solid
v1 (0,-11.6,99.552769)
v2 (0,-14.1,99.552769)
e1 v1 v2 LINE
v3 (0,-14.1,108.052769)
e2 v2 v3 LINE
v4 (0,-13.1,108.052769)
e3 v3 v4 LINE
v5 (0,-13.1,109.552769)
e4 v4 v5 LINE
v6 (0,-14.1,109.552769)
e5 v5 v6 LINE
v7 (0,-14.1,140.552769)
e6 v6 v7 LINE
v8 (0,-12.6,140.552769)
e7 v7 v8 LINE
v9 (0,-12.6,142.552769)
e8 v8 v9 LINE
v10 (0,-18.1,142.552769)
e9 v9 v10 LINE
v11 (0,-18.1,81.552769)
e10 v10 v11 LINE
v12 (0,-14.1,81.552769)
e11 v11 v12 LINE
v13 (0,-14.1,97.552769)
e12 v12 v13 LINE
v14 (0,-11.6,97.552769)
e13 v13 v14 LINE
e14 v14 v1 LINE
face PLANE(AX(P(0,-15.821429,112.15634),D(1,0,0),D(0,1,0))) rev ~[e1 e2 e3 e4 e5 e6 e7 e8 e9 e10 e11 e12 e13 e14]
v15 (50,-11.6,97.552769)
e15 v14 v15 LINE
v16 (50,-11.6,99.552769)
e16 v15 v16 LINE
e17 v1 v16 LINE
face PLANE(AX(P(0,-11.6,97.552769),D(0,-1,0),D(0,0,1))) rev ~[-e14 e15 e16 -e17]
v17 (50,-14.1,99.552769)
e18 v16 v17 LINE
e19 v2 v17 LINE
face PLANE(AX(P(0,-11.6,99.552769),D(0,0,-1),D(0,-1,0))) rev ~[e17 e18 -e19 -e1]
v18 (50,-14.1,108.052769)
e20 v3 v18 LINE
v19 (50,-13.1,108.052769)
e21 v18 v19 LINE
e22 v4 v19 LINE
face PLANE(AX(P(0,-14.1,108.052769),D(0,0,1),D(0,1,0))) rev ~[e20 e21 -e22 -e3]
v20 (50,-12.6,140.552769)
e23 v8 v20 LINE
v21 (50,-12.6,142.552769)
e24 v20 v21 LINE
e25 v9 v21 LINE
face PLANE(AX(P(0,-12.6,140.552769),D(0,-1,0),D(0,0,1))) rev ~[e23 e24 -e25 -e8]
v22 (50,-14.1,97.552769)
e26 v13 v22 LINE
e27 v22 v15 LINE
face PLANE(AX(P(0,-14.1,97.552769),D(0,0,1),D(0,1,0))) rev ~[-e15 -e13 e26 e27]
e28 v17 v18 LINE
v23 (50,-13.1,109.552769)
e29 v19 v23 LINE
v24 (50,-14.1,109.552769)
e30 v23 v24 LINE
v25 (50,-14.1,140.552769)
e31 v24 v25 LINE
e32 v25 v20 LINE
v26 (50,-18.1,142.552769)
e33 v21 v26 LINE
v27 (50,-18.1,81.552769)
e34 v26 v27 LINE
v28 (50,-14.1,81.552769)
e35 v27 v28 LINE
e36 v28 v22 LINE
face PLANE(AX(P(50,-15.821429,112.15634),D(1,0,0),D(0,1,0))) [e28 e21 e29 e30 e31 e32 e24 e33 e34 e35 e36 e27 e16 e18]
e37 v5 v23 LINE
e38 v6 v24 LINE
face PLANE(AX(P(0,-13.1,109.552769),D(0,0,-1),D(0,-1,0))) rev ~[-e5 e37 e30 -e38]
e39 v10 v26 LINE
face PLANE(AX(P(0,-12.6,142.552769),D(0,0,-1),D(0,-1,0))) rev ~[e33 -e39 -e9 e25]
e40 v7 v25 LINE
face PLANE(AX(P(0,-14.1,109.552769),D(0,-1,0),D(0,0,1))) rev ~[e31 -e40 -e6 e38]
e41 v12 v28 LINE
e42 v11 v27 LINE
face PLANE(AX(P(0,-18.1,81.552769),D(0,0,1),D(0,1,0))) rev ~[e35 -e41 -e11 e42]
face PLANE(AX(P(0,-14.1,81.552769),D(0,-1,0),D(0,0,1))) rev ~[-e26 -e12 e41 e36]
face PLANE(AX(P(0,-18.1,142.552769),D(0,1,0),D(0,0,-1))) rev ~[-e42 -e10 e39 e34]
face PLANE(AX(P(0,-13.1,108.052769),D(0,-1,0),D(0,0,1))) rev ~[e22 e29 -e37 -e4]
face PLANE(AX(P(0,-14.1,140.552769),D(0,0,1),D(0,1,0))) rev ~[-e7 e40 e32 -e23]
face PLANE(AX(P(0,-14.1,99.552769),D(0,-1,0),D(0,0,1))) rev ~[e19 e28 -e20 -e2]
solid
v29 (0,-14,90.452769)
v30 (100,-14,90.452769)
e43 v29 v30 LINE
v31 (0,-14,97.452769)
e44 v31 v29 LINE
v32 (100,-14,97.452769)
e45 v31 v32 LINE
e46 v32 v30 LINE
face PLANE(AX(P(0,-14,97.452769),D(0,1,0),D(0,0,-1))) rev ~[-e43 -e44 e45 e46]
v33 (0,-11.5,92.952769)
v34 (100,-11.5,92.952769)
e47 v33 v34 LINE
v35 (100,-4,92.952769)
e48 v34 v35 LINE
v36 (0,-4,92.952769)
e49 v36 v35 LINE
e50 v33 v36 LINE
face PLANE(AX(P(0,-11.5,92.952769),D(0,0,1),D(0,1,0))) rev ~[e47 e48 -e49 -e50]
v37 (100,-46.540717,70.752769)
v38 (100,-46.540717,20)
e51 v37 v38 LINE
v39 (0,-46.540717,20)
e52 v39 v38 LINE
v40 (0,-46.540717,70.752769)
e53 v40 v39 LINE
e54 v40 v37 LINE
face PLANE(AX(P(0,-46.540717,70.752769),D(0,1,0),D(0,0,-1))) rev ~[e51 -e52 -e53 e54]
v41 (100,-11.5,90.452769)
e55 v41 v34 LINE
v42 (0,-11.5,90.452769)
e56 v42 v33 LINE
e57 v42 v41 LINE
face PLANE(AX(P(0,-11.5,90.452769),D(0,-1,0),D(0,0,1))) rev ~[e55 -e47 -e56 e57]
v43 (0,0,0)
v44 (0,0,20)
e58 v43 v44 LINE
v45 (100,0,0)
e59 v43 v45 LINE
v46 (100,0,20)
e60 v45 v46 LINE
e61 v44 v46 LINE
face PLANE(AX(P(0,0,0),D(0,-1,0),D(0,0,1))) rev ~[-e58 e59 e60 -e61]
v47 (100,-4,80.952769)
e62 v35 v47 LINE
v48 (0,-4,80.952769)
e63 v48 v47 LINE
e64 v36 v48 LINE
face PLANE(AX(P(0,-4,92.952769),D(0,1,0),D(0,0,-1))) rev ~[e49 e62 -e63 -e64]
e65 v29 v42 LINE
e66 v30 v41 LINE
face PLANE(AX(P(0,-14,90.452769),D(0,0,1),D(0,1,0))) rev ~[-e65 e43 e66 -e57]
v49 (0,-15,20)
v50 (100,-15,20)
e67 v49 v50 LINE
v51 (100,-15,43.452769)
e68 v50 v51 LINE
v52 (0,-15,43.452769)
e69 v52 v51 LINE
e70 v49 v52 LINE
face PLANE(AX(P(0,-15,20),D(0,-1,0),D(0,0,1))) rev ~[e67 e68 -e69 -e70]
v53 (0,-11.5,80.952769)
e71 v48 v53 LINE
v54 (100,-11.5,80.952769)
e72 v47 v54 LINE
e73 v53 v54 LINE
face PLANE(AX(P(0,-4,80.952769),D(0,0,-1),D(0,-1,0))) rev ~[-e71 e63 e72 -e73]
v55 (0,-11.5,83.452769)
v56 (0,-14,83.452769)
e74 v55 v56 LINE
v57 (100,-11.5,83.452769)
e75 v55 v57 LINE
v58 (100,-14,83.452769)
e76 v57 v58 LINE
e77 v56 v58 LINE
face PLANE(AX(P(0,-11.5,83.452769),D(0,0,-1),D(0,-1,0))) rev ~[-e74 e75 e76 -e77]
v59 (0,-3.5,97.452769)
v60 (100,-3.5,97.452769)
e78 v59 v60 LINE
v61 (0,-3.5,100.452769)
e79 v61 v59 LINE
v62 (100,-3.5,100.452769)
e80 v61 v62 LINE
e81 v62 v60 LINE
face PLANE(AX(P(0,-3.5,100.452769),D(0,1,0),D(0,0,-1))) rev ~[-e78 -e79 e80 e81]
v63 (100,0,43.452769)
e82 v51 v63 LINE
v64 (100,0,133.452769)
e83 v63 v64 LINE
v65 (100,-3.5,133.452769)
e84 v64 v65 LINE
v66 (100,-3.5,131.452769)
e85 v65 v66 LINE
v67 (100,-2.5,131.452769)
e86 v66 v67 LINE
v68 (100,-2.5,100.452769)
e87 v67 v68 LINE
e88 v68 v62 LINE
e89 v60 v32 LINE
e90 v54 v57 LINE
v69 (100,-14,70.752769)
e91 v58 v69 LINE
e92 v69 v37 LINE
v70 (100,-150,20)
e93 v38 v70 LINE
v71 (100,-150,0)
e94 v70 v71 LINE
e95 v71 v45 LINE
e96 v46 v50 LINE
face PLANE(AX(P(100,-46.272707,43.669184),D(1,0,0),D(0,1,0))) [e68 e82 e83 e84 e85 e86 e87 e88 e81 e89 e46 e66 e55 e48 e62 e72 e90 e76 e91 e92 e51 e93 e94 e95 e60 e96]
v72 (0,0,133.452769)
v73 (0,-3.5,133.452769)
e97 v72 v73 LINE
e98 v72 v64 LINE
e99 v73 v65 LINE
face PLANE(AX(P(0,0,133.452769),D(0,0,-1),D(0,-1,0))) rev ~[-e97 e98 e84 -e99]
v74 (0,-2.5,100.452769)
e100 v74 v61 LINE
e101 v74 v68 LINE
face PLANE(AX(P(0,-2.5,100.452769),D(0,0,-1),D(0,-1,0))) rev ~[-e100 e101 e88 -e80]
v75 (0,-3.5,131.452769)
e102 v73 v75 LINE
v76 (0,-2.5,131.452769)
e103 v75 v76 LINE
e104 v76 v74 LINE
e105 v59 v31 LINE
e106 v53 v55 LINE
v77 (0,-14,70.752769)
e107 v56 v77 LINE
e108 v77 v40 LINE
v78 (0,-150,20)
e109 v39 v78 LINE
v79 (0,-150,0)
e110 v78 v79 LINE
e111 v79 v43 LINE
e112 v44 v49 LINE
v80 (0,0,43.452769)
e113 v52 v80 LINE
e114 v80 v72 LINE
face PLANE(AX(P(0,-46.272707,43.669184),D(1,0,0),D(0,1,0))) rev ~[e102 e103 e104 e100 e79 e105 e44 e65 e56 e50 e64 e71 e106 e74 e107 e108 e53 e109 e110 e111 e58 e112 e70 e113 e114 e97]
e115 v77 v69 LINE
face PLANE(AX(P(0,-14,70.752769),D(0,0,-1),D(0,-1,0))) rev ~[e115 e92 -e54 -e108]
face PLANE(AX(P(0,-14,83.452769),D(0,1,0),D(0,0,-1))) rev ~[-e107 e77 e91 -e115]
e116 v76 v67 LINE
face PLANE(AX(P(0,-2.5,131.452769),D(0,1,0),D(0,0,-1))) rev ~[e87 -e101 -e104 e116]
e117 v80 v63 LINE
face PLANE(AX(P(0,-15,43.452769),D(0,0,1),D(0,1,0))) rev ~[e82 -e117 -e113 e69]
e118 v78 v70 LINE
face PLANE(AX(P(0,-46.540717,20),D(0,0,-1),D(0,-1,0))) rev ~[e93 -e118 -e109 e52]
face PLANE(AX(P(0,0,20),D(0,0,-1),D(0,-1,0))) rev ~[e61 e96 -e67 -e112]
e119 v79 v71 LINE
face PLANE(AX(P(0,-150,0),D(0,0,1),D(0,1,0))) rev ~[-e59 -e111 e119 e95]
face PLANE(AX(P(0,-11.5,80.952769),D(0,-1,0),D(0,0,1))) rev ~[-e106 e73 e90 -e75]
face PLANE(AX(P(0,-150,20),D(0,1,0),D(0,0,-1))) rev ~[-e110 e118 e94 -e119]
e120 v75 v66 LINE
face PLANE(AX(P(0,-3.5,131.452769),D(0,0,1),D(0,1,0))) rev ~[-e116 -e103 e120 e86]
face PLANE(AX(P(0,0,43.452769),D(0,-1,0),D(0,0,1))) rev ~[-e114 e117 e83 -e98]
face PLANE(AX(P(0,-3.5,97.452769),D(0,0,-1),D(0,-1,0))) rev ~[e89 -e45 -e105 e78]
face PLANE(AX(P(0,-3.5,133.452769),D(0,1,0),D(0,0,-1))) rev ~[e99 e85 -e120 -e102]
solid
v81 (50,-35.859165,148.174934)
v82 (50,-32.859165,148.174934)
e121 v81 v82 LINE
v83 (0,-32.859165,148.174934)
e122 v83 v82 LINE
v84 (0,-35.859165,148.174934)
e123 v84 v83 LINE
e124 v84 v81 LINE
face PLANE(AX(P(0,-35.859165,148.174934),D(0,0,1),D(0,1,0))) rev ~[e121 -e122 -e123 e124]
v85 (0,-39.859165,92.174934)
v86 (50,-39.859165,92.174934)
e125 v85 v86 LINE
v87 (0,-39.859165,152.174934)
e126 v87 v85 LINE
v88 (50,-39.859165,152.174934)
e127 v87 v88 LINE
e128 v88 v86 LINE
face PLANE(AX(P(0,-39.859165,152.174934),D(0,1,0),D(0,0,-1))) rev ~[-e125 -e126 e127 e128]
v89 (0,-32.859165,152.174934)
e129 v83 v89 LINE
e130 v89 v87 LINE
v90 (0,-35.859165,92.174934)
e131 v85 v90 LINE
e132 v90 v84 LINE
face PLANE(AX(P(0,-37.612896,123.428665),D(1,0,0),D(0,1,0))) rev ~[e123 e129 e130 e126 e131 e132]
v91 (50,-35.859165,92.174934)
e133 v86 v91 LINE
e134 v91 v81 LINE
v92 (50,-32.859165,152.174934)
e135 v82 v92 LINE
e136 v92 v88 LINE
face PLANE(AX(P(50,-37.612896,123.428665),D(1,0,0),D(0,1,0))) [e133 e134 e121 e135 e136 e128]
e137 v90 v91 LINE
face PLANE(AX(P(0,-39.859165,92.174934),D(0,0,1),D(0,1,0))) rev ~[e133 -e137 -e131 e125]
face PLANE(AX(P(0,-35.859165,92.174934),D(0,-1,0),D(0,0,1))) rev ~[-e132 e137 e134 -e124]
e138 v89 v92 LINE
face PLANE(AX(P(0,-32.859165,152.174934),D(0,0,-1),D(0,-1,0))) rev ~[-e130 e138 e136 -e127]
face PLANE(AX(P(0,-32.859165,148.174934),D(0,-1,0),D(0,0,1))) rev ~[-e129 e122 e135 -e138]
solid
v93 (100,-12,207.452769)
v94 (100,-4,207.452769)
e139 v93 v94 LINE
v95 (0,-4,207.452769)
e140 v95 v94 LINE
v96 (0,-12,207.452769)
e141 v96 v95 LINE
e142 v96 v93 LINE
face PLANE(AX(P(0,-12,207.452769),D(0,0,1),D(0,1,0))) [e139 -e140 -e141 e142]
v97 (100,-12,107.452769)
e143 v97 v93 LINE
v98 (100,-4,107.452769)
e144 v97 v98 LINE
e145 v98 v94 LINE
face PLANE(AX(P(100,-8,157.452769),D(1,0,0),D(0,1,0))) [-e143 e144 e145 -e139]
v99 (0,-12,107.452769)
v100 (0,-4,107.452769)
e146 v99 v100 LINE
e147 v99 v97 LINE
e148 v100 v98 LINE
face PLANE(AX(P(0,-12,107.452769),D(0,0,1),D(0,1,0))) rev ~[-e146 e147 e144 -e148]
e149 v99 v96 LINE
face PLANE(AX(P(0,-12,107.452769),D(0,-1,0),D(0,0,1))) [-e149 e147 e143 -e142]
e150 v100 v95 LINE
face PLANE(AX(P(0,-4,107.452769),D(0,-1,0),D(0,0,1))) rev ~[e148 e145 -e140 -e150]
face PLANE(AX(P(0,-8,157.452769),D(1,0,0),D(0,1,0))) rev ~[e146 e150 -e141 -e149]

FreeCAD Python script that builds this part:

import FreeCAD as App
import Part
import Sketcher
from FreeCAD import Vector


def add_polygon(sketch, points):
    """Adds a closed chain of lines whose ends are joined by coincident constraints."""
    first, n = sketch.GeometryCount, len(points)
    for a, b in zip(points, points[1:] + points[:1]):
        sketch.addGeometry(Part.LineSegment(App.Vector(*a, 0), App.Vector(*b, 0)), False)
    for i in range(n):
        sketch.addConstraint(Sketcher.Constraint("Coincident", first + i, 2, first + (i + 1) % n, 1))

doc = App.newDocument("Part")
body = doc.addObject("PartDesign::Body", "Body")

sketch1 = doc.addObject("Sketcher::SketchObject", "Sketch")
body.addObject(sketch1)
sketch1.AttachmentSupport = (doc.YZ_Plane, [""])
sketch1.MapMode = "FlatFace"
add_polygon(sketch1, [(0, 43.452769), (0, 133.452769), (-3.5, 133.452769), (-3.5, 131.452769), (-2.5, 131.452769), (-2.5, 100.452769), (-3.5, 100.452769), (-3.5, 97.452769), (-14, 97.452769), (-14, 90.452769), (-11.5, 90.452769), (-11.5, 92.952769), (-4, 92.952769), (-4, 80.952769), (-11.5, 80.952769), (-11.5, 83.452769), (-14, 83.452769), (-14, 70.752769), (-46.540717, 70.752769), (-46.540717, 20), (-150, 20), (-150, 0), (0, 0), (0, 20), (-15, 20), (-15, 43.452769)])
sketch1.addConstraint([
    Sketcher.Constraint("Vertical", 0),
    Sketcher.Constraint("Horizontal", 1),
    Sketcher.Constraint("Vertical", 2),
    Sketcher.Constraint("Horizontal", 3),
    Sketcher.Constraint("Vertical", 4),
    Sketcher.Constraint("Horizontal", 5),
    Sketcher.Constraint("Vertical", 6),
    Sketcher.Constraint("Horizontal", 7),
    Sketcher.Constraint("Vertical", 8),
    Sketcher.Constraint("Horizontal", 9),
    Sketcher.Constraint("Vertical", 10),
    Sketcher.Constraint("Horizontal", 11),
    Sketcher.Constraint("Vertical", 12),
    Sketcher.Constraint("Horizontal", 13),
    Sketcher.Constraint("Vertical", 14),
    Sketcher.Constraint("Horizontal", 15),
    Sketcher.Constraint("Vertical", 16),
    Sketcher.Constraint("Horizontal", 17),
    Sketcher.Constraint("Vertical", 18),
    Sketcher.Constraint("Horizontal", 19),
    Sketcher.Constraint("Vertical", 20),
    Sketcher.Constraint("Horizontal", 21),
    Sketcher.Constraint("Vertical", 22),
    Sketcher.Constraint("Horizontal", 23),
    Sketcher.Constraint("Vertical", 24),
    Sketcher.Constraint("Horizontal", 25),
    Sketcher.Constraint("Coincident", 21, 2, -1, 1),
    Sketcher.Constraint("PointOnObject", 0, 2, -2),
    Sketcher.Constraint("Horizontal", 19, 2, 22, 2),
    Sketcher.Constraint("Vertical", 2, 2, 5, 2),
    Sketcher.Constraint("Vertical", 10, 2, 13, 2),
    Sketcher.Constraint("Vertical", 8, 2, 15, 2),
    Sketcher.Constraint("Equal", 15, 10),
    Sketcher.Constraint("Equal", 10, 14),
    Sketcher.Constraint("DistanceX", 3, 1, 3, 2, 1.0),
    Sketcher.Constraint("DistanceX", 21, 1, 21, 2, 150.0),
    Sketcher.Constraint("DistanceX", 23, 2, 23, 1, 15.0),
    Sketcher.Constraint("DistanceY", 0, 1, 0, 2, 90.0),
    Sketcher.Constraint("DistanceY", 2, 2, 2, 1, 2.0),
    Sketcher.Constraint("DistanceY", 4, 2, 4, 1, 31.0),
    Sketcher.Constraint("DistanceY", 6, 2, 6, 1, 3.0),
    Sketcher.Constraint("DistanceY", 8, 2, 8, 1, 7.0),
    Sketcher.Constraint("DistanceY", 12, 2, 12, 1, 12.0),
    Sketcher.Constraint("DistanceY", 20, 2, 20, 1, 20.0),
    Sketcher.Constraint("DistanceX", 1, 2, 1, 1, 3.5),
    Sketcher.Constraint("DistanceX", 7, 2, 7, 1, 10.5),
    Sketcher.Constraint("DistanceX", 9, 1, 9, 2, 2.5),
    Sketcher.Constraint("DistanceX", 11, 1, 11, 2, 7.5),
    Sketcher.Constraint("DistanceY", 16, 2, 16, 1, 12.7),
    Sketcher.Constraint("DistanceY", 18, 2, 18, 1, 50.752769),
    Sketcher.Constraint("DistanceX", 17, 2, 17, 1, 32.540717),
])
pad1 = doc.addObject("PartDesign::Pad", "Pad")
body.addObject(pad1)
pad1.Profile = sketch1
pad1.Length = 100
body2 = doc.addObject("PartDesign::Body", "Body001")

sketch2 = doc.addObject("Sketcher::SketchObject", "Sketch001")
body2.addObject(sketch2)
sketch2.AttachmentSupport = (doc.getObject("YZ_Plane001"), [""])
sketch2.MapMode = "FlatFace"
add_polygon(sketch2, [(-12, 207.452769), (-12, 107.452769), (-4, 107.452769), (-4, 207.452769)])
sketch2.addConstraint([
    Sketcher.Constraint("Vertical", 0),
    Sketcher.Constraint("Horizontal", 1),
    Sketcher.Constraint("Vertical", 2),
    Sketcher.Constraint("Horizontal", 3),
    Sketcher.Constraint("DistanceX", 1, 1, 1, 2, 8.0),
    Sketcher.Constraint("DistanceY", 0, 2, 0, 1, 100.0),
    Sketcher.Constraint("DistanceX", 0, 2, -1, 1, 12.0),
    Sketcher.Constraint("DistanceY", -1, 1, 0, 2, 107.452769),
])
pad2 = doc.addObject("PartDesign::Pad", "Pad001")
body2.addObject(pad2)
pad2.Profile = sketch2
pad2.Length = 100
body3 = doc.addObject("PartDesign::Body", "Body002")

sketch3 = doc.addObject("Sketcher::SketchObject", "Sketch002")
body3.addObject(sketch3)
sketch3.AttachmentSupport = (doc.getObject("YZ_Plane002"), [""])
sketch3.MapMode = "FlatFace"
add_polygon(sketch3, [(-12.6, 140.552769), (-12.6, 142.552769), (-18.1, 142.552769), (-18.1, 81.552769), (-14.1, 81.552769), (-14.1, 97.552769), (-11.6, 97.552769), (-11.6, 99.552769), (-14.1, 99.552769), (-14.1, 108.052769), (-13.1, 108.052769), (-13.1, 109.552769), (-14.1, 109.552769), (-14.1, 140.552769)])
sketch3.addConstraint([
    Sketcher.Constraint("Vertical", 0),
    Sketcher.Constraint("Horizontal", 1),
    Sketcher.Constraint("Vertical", 2),
    Sketcher.Constraint("Horizontal", 3),
    Sketcher.Constraint("Vertical", 4),
    Sketcher.Constraint("Horizontal", 5),
    Sketcher.Constraint("Vertical", 6),
    Sketcher.Constraint("Horizontal", 7),
    Sketcher.Constraint("Vertical", 8),
    Sketcher.Constraint("Horizontal", 9),
    Sketcher.Constraint("Vertical", 10),
    Sketcher.Constraint("Horizontal", 11),
    Sketcher.Constraint("Vertical", 12),
    Sketcher.Constraint("Horizontal", 13),
    Sketcher.Constraint("Vertical", 4, 2, 7, 2),
    Sketcher.Constraint("Vertical", 8, 2, 11, 2),
    Sketcher.Constraint("Equal", 0, 6),
    Sketcher.Constraint("Equal", 13, 10),
    Sketcher.Constraint("DistanceX", 3, 1, 3, 2, 4.0),
    Sketcher.Constraint("DistanceX", 9, 1, 9, 2, 1.0),
    Sketcher.Constraint("DistanceY", 0, 1, 0, 2, 2.0),
    Sketcher.Constraint("DistanceY", 2, 2, 2, 1, 61.0),
    Sketcher.Constraint("DistanceY", 4, 1, 4, 2, 16.0),
    Sketcher.Constraint("DistanceY", 12, 1, 12, 2, 31.0),
    Sketcher.Constraint("DistanceX", 1, 2, 1, 1, 5.5),
    Sketcher.Constraint("DistanceX", 5, 1, 5, 2, 2.5),
    Sketcher.Constraint("DistanceX", 0, 2, -1, 1, 12.6),
    Sketcher.Constraint("DistanceY", -1, 1, 0, 2, 142.552769),
])
pad3 = doc.addObject("PartDesign::Pad", "Pad002")
body3.addObject(pad3)
pad3.Profile = sketch3
pad3.Length = 50
body4 = doc.addObject("PartDesign::Body", "Body003")

sketch4 = doc.addObject("Sketcher::SketchObject", "Sketch003")
body4.addObject(sketch4)
sketch4.AttachmentSupport = (doc.getObject("YZ_Plane003"), [""])
sketch4.MapMode = "FlatFace"
add_polygon(sketch4, [(-39.859165, 92.174934), (-35.859165, 92.174934), (-35.859165, 148.174934), (-32.859165, 148.174934), (-32.859165, 152.174934), (-39.859165, 152.174934)])
sketch4.addConstraint([
    Sketcher.Constraint("Horizontal", 0),
    Sketcher.Constraint("Vertical", 1),
    Sketcher.Constraint("Horizontal", 2),
    Sketcher.Constraint("Vertical", 3),
    Sketcher.Constraint("Horizontal", 4),
    Sketcher.Constraint("Vertical", 5),
    Sketcher.Constraint("Equal", 0, 3),
    Sketcher.Constraint("DistanceX", 0, 1, 0, 2, 4.0),
    Sketcher.Constraint("DistanceX", 2, 1, 2, 2, 3.0),
    Sketcher.Constraint("DistanceY", 1, 1, 1, 2, 56.0),
    Sketcher.Constraint("DistanceX", 0, 2, -1, 1, 35.859165),
    Sketcher.Constraint("DistanceY", -1, 1, 0, 2, 92.174934),
])
pad4 = doc.addObject("PartDesign::Pad", "Pad003")
body4.addObject(pad4)
pad4.Profile = sketch4
pad4.Length = 50

doc.recompute()
